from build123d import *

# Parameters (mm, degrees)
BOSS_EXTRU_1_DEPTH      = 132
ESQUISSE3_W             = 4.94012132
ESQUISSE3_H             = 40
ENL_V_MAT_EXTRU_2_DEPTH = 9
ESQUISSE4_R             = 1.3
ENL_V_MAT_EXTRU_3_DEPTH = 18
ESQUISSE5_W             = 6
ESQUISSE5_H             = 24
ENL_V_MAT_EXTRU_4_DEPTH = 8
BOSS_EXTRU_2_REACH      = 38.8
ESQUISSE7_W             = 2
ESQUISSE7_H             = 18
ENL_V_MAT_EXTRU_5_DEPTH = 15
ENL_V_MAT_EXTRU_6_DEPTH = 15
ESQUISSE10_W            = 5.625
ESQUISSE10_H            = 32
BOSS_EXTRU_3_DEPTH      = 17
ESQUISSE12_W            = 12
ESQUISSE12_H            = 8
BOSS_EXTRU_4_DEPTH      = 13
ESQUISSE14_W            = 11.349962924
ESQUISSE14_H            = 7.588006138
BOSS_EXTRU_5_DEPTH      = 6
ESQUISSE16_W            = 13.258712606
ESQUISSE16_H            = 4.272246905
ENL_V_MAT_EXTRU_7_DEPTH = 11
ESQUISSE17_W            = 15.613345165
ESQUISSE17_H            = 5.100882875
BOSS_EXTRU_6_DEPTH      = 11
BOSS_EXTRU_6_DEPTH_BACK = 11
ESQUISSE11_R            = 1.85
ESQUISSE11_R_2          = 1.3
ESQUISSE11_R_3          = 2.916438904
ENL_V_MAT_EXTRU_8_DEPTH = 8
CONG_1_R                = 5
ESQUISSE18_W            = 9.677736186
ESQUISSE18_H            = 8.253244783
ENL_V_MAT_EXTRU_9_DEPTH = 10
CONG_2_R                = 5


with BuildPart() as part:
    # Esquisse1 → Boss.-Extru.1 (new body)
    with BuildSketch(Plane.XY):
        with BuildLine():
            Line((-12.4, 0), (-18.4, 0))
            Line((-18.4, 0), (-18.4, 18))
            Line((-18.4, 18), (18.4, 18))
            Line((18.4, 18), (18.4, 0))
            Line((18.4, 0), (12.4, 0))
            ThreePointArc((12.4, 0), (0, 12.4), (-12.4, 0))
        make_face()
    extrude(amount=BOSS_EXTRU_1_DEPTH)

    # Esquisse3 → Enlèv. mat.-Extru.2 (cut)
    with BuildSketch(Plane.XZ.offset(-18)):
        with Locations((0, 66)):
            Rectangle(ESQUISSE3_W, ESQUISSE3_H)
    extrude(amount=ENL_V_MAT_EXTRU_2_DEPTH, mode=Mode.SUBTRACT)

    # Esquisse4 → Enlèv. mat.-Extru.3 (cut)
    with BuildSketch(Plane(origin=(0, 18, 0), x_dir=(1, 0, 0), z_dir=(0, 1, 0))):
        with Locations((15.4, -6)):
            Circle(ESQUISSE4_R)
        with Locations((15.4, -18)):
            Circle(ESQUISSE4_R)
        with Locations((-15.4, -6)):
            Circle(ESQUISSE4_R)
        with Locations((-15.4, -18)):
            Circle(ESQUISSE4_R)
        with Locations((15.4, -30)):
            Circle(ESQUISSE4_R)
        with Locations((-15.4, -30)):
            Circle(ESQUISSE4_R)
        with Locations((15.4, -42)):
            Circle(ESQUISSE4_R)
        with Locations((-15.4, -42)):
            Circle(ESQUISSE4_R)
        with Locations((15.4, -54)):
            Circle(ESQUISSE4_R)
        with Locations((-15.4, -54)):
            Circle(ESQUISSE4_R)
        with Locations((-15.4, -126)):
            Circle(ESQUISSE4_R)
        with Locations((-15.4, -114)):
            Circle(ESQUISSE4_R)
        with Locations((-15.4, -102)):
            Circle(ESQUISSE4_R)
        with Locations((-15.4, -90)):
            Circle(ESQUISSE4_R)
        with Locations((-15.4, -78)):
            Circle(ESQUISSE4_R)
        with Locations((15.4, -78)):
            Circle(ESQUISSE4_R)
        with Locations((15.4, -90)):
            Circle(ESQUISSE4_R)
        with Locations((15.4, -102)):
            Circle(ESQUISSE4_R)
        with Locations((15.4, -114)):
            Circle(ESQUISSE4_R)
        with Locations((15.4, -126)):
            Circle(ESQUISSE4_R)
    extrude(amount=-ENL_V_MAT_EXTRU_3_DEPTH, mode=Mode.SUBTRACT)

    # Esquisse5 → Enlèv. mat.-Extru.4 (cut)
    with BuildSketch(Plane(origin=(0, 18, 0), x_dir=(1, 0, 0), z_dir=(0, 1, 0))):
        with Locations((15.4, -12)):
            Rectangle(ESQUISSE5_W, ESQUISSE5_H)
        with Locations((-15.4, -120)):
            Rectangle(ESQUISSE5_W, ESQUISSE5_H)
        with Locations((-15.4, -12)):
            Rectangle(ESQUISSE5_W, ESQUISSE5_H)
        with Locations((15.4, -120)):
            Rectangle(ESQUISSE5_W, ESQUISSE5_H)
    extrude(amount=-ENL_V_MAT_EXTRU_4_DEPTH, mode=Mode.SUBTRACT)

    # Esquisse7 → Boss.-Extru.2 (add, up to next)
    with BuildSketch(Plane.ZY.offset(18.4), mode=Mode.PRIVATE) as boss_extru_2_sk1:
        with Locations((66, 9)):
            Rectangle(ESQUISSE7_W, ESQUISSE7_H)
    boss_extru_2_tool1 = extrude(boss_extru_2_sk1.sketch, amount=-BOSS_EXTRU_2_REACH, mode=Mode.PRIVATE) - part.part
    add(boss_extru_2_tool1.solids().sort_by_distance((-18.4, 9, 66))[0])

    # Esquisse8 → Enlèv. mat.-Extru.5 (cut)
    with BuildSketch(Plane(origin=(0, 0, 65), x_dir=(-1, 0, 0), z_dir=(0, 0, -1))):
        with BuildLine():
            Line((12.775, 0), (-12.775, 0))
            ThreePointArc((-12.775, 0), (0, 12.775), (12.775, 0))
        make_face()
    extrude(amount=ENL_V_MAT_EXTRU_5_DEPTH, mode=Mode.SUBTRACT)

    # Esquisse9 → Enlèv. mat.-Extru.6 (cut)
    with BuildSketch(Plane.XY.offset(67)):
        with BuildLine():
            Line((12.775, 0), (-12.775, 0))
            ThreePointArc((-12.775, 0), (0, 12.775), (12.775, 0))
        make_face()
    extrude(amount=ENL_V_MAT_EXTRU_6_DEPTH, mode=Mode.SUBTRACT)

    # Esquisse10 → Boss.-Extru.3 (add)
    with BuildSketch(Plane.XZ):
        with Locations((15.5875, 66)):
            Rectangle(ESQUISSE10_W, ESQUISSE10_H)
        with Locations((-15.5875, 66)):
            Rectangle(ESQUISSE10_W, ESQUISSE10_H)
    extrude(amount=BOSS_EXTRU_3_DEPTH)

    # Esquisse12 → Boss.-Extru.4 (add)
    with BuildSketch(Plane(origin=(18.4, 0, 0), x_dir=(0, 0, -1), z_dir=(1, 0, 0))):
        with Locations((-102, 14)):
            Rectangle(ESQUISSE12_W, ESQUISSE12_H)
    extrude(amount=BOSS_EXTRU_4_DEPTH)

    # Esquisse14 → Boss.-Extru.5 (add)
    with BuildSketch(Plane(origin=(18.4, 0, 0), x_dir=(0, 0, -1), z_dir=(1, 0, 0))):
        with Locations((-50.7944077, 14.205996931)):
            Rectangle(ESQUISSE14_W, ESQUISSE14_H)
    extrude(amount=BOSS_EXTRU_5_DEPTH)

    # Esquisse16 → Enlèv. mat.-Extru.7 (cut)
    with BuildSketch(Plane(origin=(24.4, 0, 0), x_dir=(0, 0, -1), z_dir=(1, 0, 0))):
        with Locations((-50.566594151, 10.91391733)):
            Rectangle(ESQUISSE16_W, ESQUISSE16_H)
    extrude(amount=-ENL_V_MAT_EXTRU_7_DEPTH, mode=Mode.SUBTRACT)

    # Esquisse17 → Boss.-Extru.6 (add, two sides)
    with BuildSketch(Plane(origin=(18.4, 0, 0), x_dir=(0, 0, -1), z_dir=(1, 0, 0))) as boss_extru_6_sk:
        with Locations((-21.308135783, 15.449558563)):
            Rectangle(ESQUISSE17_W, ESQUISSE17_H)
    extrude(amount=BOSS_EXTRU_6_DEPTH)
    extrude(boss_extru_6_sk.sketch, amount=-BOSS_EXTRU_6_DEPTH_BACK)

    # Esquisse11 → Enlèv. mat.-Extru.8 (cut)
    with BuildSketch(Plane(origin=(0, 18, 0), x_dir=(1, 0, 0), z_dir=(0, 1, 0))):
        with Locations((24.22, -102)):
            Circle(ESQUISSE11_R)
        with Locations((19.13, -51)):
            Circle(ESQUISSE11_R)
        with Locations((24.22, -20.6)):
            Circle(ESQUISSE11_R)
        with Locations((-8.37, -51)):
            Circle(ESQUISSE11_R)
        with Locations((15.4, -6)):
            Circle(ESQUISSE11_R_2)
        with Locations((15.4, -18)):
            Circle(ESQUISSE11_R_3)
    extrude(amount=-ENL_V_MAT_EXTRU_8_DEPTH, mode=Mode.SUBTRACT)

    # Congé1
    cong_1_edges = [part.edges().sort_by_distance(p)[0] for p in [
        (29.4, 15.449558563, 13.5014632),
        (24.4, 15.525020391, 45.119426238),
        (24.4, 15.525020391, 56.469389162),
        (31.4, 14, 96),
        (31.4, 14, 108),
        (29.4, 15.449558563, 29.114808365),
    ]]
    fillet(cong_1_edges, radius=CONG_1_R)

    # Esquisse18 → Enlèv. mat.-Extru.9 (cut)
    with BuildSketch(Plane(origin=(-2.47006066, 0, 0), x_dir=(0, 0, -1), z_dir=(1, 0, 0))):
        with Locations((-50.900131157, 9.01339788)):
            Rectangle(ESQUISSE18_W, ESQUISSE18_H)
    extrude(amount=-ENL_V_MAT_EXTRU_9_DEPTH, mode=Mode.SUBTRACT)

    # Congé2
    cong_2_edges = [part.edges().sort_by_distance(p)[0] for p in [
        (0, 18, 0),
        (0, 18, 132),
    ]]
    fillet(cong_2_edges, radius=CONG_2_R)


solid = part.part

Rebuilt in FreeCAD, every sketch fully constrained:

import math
import FreeCAD as App
import Part
import Sketcher

V = App.Vector


def edges_at(feature, points):
    """Names of the edges that pass closest to the given points."""
    edges = feature.Shape.Edges
    near = lambda p: min(range(len(edges)), key=lambda i: edges[i].distToShape(Part.Vertex(*p))[0])
    return sorted({f"Edge{near(p) + 1}" for p in points})

doc = App.newDocument("Part")
params = doc.addObject("Spreadsheet::Sheet", "Params")
for row, (alias, value) in enumerate([
    ("sketch1_radius", "12.4 mm"),
    ("sketch1_width", "6 mm"),
    ("sketch1_height", "18 mm"),
    ("pad1_length", "132 mm"),
    ("sketch2_height", "40 mm"),
    ("pocket1_length", "9 mm"),
    ("sketch3_diameter", "2.6 mm"),
    ("pocket2_length", "18 mm"),
    ("sketch4_width", "6 mm"),
    ("sketch4_height", "24 mm"),
    ("pocket3_length", "8 mm"),
    ("sketch5_width", "18 mm"),
    ("sketch5_height", "2 mm"),
    ("pocket4_length", "15 mm"),
    ("pocket5_length", "15 mm"),
    ("sketch8_height", "32 mm"),
    ("pad3_length", "17 mm"),
    ("sketch9_width", "8 mm"),
    ("sketch9_height", "12 mm"),
    ("pad4_length", "13 mm"),
    ("pad5_length", "6 mm"),
    ("pocket6_length", "11 mm"),
    ("pad6_length", "11 mm"),
    ("pad6_length2", "11 mm"),
    ("sketch13_diameter", "3.7 mm"),
    ("sketch13_diameter2", "2.6 mm"),
    ("pocket7_length", "8 mm"),
    ("fillet_radius", "5 mm"),
    ("pocket8_length", "10 mm"),
    ("fillet2_radius", "5 mm"),
], start=1):
    params.set(f"A{row}", alias)
    params.set(f"B{row}", "=" + value)
    params.setAlias(f"B{row}", alias)

body = doc.addObject("PartDesign::Body", "Body")

# Sketch on XY plane
sketch1 = doc.addObject("Sketcher::SketchObject", "Sketch")
body.addObject(sketch1)
sketch1.AttachmentSupport = (doc.XY_Plane, [""])
sketch1.MapMode = "FlatFace"
sketch1.addGeometry(Part.LineSegment(V(-18, 0, 0), V(-12, 0, 0)), False)
sketch1.addGeometry(Part.ArcOfCircle(Part.Circle(V(0, 0, 0), V(0, 0, 1), 12), math.radians(0), math.radians(180)), False)
sketch1.addGeometry(Part.LineSegment(V(12, 0, 0), V(18, 0, 0)), False)
sketch1.addGeometry(Part.LineSegment(V(18, 0, 0), V(18, 18, 0)), False)
sketch1.addGeometry(Part.LineSegment(V(18, 18, 0), V(-18, 18, 0)), False)
sketch1.addGeometry(Part.LineSegment(V(-18, 18, 0), V(-18, 0, 0)), False)
sketch1.addConstraint(Sketcher.Constraint("Coincident", 0, 2, 1, 2))
sketch1.addConstraint(Sketcher.Constraint("Coincident", 1, 1, 2, 1))
sketch1.addConstraint(Sketcher.Constraint("Coincident", 2, 2, 3, 1))
sketch1.addConstraint(Sketcher.Constraint("Coincident", 3, 2, 4, 1))
sketch1.addConstraint(Sketcher.Constraint("Coincident", 4, 2, 5, 1))
sketch1.addConstraint(Sketcher.Constraint("Coincident", 5, 2, 0, 1))
sketch1.addConstraint(Sketcher.Constraint("Horizontal", 0))
sketch1.addConstraint(Sketcher.Constraint("Horizontal", 2))
sketch1.addConstraint(Sketcher.Constraint("Vertical", 3))
sketch1.addConstraint(Sketcher.Constraint("Horizontal", 4))
sketch1.addConstraint(Sketcher.Constraint("Vertical", 5))
sketch1.addConstraint(Sketcher.Constraint("Coincident", 1, 3, -1, 1))
sketch1.addConstraint(Sketcher.Constraint("Symmetric", 2, 2, 5, 2, -1, 1))
sketch1.addConstraint(Sketcher.Constraint("PointOnObject", 0, 2, -1))
sketch1.addConstraint(Sketcher.Constraint("Radius", 1, 12.4))
sketch1.addConstraint(Sketcher.Constraint("DistanceX", 0, 1, 0, 2, 6.0))
sketch1.addConstraint(Sketcher.Constraint("DistanceY", 3, 1, 3, 2, 18.0))
sketch1.setExpression("Constraints[14]", "Params.sketch1_radius")
sketch1.setExpression("Constraints[15]", "Params.sketch1_width")
sketch1.setExpression("Constraints[16]", "Params.sketch1_height")
pad1 = doc.addObject("PartDesign::Pad", "Pad")
body.addObject(pad1)
pad1.Profile = sketch1
pad1.setExpression("Length", "Params.pad1_length")

# Sketch on XZ plane
sketch2 = doc.addObject("Sketcher::SketchObject", "Sketch001")
body.addObject(sketch2)
sketch2.AttachmentSupport = (doc.XZ_Plane, [""])
sketch2.MapMode = "FlatFace"
sketch2.AttachmentOffset = App.Placement(V(0, 0, -18), App.Rotation())
sketch2.addGeometry(Part.LineSegment(V(-2.5, 86, 0), V(-2.5, 46, 0)), False)
sketch2.addGeometry(Part.LineSegment(V(-2.5, 46, 0), V(2.5, 46, 0)), False)
sketch2.addGeometry(Part.LineSegment(V(2.5, 46, 0), V(2.5, 86, 0)), False)
sketch2.addGeometry(Part.LineSegment(V(2.5, 86, 0), V(-2.5, 86, 0)), False)
sketch2.addConstraint(Sketcher.Constraint("Coincident", 0, 2, 1, 1))
sketch2.addConstraint(Sketcher.Constraint("Coincident", 1, 2, 2, 1))
sketch2.addConstraint(Sketcher.Constraint("Coincident", 2, 2, 3, 1))
sketch2.addConstraint(Sketcher.Constraint("Coincident", 3, 2, 0, 1))
sketch2.addConstraint(Sketcher.Constraint("Vertical", 0))
sketch2.addConstraint(Sketcher.Constraint("Horizontal", 1))
sketch2.addConstraint(Sketcher.Constraint("Vertical", 2))
sketch2.addConstraint(Sketcher.Constraint("Horizontal", 3))
sketch2.addConstraint(Sketcher.Constraint("DistanceY", 0, 2, 0, 1, 40.0))
sketch2.addConstraint(Sketcher.Constraint("DistanceY", -1, 1, 0, 2, 46.0))
sketch2.addConstraint(Sketcher.Constraint("DistanceX", 1, 1, 1, 2, 4.940121))
sketch2.addConstraint(Sketcher.Constraint("DistanceX", 0, 2, -1, 1, 2.470061))
sketch2.setExpression("Constraints[8]", "Params.sketch2_height")
pocket1 = doc.addObject("PartDesign::Pocket", "Pocket")
body.addObject(pocket1)
pocket1.Profile = sketch2
pocket1.setExpression("Length", "Params.pocket1_length")
pocket1.Reversed = True

# Sketch on XZ plane
sketch3 = doc.addObject("Sketcher::SketchObject", "Sketch002")
body.addObject(sketch3)
sketch3.AttachmentSupport = (doc.XZ_Plane, [""])
sketch3.MapMode = "FlatFace"
sketch3.AttachmentOffset = App.Placement(V(0, 0, -18), App.Rotation())
sketch3.addGeometry(Part.Circle(V(15.4, 6, 0), V(0, 0, 1), 1.3), False)
sketch3.addGeometry(Part.Circle(V(15.4, 18, 0), V(0, 0, 1), 1.3), False)
sketch3.addGeometry(Part.Circle(V(-15.4, 6, 0), V(0, 0, 1), 1.3), False)
sketch3.addGeometry(Part.Circle(V(-15.4, 18, 0), V(0, 0, 1), 1.3), False)
sketch3.addGeometry(Part.Circle(V(15.4, 30, 0), V(0, 0, 1), 1.3), False)
sketch3.addGeometry(Part.Circle(V(-15.4, 30, 0), V(0, 0, 1), 1.3), False)
sketch3.addGeometry(Part.Circle(V(15.4, 42, 0), V(0, 0, 1), 1.3), False)
sketch3.addGeometry(Part.Circle(V(-15.4, 42, 0), V(0, 0, 1), 1.3), False)
sketch3.addGeometry(Part.Circle(V(15.4, 54, 0), V(0, 0, 1), 1.3), False)
sketch3.addGeometry(Part.Circle(V(-15.4, 54, 0), V(0, 0, 1), 1.3), False)
sketch3.addGeometry(Part.Circle(V(-15.4, 126, 0), V(0, 0, 1), 1.3), False)
sketch3.addGeometry(Part.Circle(V(-15.4, 114, 0), V(0, 0, 1), 1.3), False)
sketch3.addGeometry(Part.Circle(V(-15.4, 102, 0), V(0, 0, 1), 1.3), False)
sketch3.addGeometry(Part.Circle(V(-15.4, 90, 0), V(0, 0, 1), 1.3), False)
sketch3.addGeometry(Part.Circle(V(-15.4, 78, 0), V(0, 0, 1), 1.3), False)
sketch3.addGeometry(Part.Circle(V(15.4, 78, 0), V(0, 0, 1), 1.3), False)
sketch3.addGeometry(Part.Circle(V(15.4, 90, 0), V(0, 0, 1), 1.3), False)
sketch3.addGeometry(Part.Circle(V(15.4, 102, 0), V(0, 0, 1), 1.3), False)
sketch3.addGeometry(Part.Circle(V(15.4, 114, 0), V(0, 0, 1), 1.3), False)
sketch3.addGeometry(Part.Circle(V(15.4, 126, 0), V(0, 0, 1), 1.3), False)
sketch3.addConstraint(Sketcher.Constraint("Equal", 0, 1))
sketch3.addConstraint(Sketcher.Constraint("Equal", 1, 2))
sketch3.addConstraint(Sketcher.Constraint("Equal", 2, 3))
sketch3.addConstraint(Sketcher.Constraint("Equal", 3, 4))
sketch3.addConstraint(Sketcher.Constraint("Equal", 4, 5))
sketch3.addConstraint(Sketcher.Constraint("Equal", 5, 6))
sketch3.addConstraint(Sketcher.Constraint("Equal", 6, 7))
sketch3.addConstraint(Sketcher.Constraint("Equal", 7, 8))
sketch3.addConstraint(Sketcher.Constraint("Equal", 8, 9))
sketch3.addConstraint(Sketcher.Constraint("Equal", 9, 10))
sketch3.addConstraint(Sketcher.Constraint("Equal", 10, 11))
sketch3.addConstraint(Sketcher.Constraint("Equal", 11, 12))
sketch3.addConstraint(Sketcher.Constraint("Equal", 12, 13))
sketch3.addConstraint(Sketcher.Constraint("Equal", 13, 14))
sketch3.addConstraint(Sketcher.Constraint("Equal", 14, 15))
sketch3.addConstraint(Sketcher.Constraint("Equal", 15, 16))
sketch3.addConstraint(Sketcher.Constraint("Equal", 16, 17))
sketch3.addConstraint(Sketcher.Constraint("Equal", 17, 18))
sketch3.addConstraint(Sketcher.Constraint("Equal", 18, 19))
sketch3.addConstraint(Sketcher.Constraint("Symmetric", 0, 3, 2, 3, -2))
sketch3.addConstraint(Sketcher.Constraint("Symmetric", 1, 3, 3, 3, -2))
sketch3.addConstraint(Sketcher.Constraint("Symmetric", 4, 3, 5, 3, -2))
sketch3.addConstraint(Sketcher.Constraint("Symmetric", 6, 3, 7, 3, -2))
sketch3.addConstraint(Sketcher.Constraint("Symmetric", 8, 3, 9, 3, -2))
sketch3.addConstraint(Sketcher.Constraint("Symmetric", 14, 3, 15, 3, -2))
sketch3.addConstraint(Sketcher.Constraint("Symmetric", 13, 3, 16, 3, -2))
sketch3.addConstraint(Sketcher.Constraint("Symmetric", 12, 3, 17, 3, -2))
sketch3.addConstraint(Sketcher.Constraint("Symmetric", 11, 3, 18, 3, -2))
sketch3.addConstraint(Sketcher.Constraint("Symmetric", 10, 3, 19, 3, -2))
sketch3.addConstraint(Sketcher.Constraint("Vertical", 0, 3, 1, 3))
sketch3.addConstraint(Sketcher.Constraint("Vertical", 1, 3, 4, 3))
sketch3.addConstraint(Sketcher.Constraint("Vertical", 4, 3, 6, 3))
sketch3.addConstraint(Sketcher.Constraint("Vertical", 6, 3, 8, 3))
sketch3.addConstraint(Sketcher.Constraint("Vertical", 9, 3, 10, 3))
sketch3.addConstraint(Sketcher.Constraint("Vertical", 10, 3, 11, 3))
sketch3.addConstraint(Sketcher.Constraint("Vertical", 11, 3, 12, 3))
sketch3.addConstraint(Sketcher.Constraint("Vertical", 12, 3, 13, 3))
sketch3.addConstraint(Sketcher.Constraint("Vertical", 13, 3, 14, 3))
sketch3.addConstraint(Sketcher.Constraint("Diameter", 0, 2.6))
sketch3.addConstraint(Sketcher.Constraint("DistanceY", -1, 1, 0, 3, 6.0))
sketch3.addConstraint(Sketcher.Constraint("DistanceY", -1, 1, 1, 3, 18.0))
sketch3.addConstraint(Sketcher.Constraint("DistanceY", -1, 1, 4, 3, 30.0))
sketch3.addConstraint(Sketcher.Constraint("DistanceY", -1, 1, 6, 3, 42.0))
sketch3.addConstraint(Sketcher.Constraint("DistanceY", -1, 1, 8, 3, 54.0))
sketch3.addConstraint(Sketcher.Constraint("DistanceY", -1, 1, 10, 3, 126.0))
sketch3.addConstraint(Sketcher.Constraint("DistanceY", -1, 1, 11, 3, 114.0))
sketch3.addConstraint(Sketcher.Constraint("DistanceY", -1, 1, 12, 3, 102.0))
sketch3.addConstraint(Sketcher.Constraint("DistanceY", -1, 1, 13, 3, 90.0))
sketch3.addConstraint(Sketcher.Constraint("DistanceY", -1, 1, 14, 3, 78.0))
sketch3.addConstraint(Sketcher.Constraint("DistanceX", -1, 1, 0, 3, 15.4))
sketch3.setExpression("Constraints[38]", "Params.sketch3_diameter")
pocket2 = doc.addObject("PartDesign::Pocket", "Pocket001")
body.addObject(pocket2)
pocket2.Profile = sketch3
pocket2.setExpression("Length", "Params.pocket2_length")
pocket2.Reversed = True

# Sketch on XZ plane
sketch4 = doc.addObject("Sketcher::SketchObject", "Sketch003")
body.addObject(sketch4)
sketch4.AttachmentSupport = (doc.XZ_Plane, [""])
sketch4.MapMode = "FlatFace"
sketch4.AttachmentOffset = App.Placement(V(0, 0, -18), App.Rotation())
sketch4.addGeometry(Part.LineSegment(V(12, 0, 0), V(12, 24, 0)), False)
sketch4.addGeometry(Part.LineSegment(V(12, 24, 0), V(18, 24, 0)), False)
sketch4.addGeometry(Part.LineSegment(V(18, 24, 0), V(18, 0, 0)), False)
sketch4.addGeometry(Part.LineSegment(V(18, 0, 0), V(12, 0, 0)), False)
sketch4.addGeometry(Part.LineSegment(V(-18, 108, 0), V(-18, 132, 0)), False)
sketch4.addGeometry(Part.LineSegment(V(-18, 132, 0), V(-12, 132, 0)), False)
sketch4.addGeometry(Part.LineSegment(V(-12, 132, 0), V(-12, 108, 0)), False)
sketch4.addGeometry(Part.LineSegment(V(-12, 108, 0), V(-18, 108, 0)), False)
sketch4.addGeometry(Part.LineSegment(V(-18, 0, 0), V(-18, 24, 0)), False)
sketch4.addGeometry(Part.LineSegment(V(-18, 24, 0), V(-12, 24, 0)), False)
sketch4.addGeometry(Part.LineSegment(V(-12, 24, 0), V(-12, 0, 0)), False)
sketch4.addGeometry(Part.LineSegment(V(-12, 0, 0), V(-18, 0, 0)), False)
sketch4.addGeometry(Part.LineSegment(V(12, 108, 0), V(12, 132, 0)), False)
sketch4.addGeometry(Part.LineSegment(V(12, 132, 0), V(18, 132, 0)), False)
sketch4.addGeometry(Part.LineSegment(V(18, 132, 0), V(18, 108, 0)), False)
sketch4.addGeometry(Part.LineSegment(V(18, 108, 0), V(12, 108, 0)), False)
sketch4.addConstraint(Sketcher.Constraint("Coincident", 0, 2, 1, 1))
sketch4.addConstraint(Sketcher.Constraint("Coincident", 1, 2, 2, 1))
sketch4.addConstraint(Sketcher.Constraint("Coincident", 2, 2, 3, 1))
sketch4.addConstraint(Sketcher.Constraint("Coincident", 3, 2, 0, 1))
sketch4.addConstraint(Sketcher.Constraint("Coincident", 4, 2, 5, 1))
sketch4.addConstraint(Sketcher.Constraint("Coincident", 5, 2, 6, 1))
sketch4.addConstraint(Sketcher.Constraint("Coincident", 6, 2, 7, 1))
sketch4.addConstraint(Sketcher.Constraint("Coincident", 7, 2, 4, 1))
sketch4.addConstraint(Sketcher.Constraint("Coincident", 8, 2, 9, 1))
sketch4.addConstraint(Sketcher.Constraint("Coincident", 9, 2, 10, 1))
sketch4.addConstraint(Sketcher.Constraint("Coincident", 10, 2, 11, 1))
sketch4.addConstraint(Sketcher.Constraint("Coincident", 11, 2, 8, 1))
sketch4.addConstraint(Sketcher.Constraint("Coincident", 12, 2, 13, 1))
sketch4.addConstraint(Sketcher.Constraint("Coincident", 13, 2, 14, 1))
sketch4.addConstraint(Sketcher.Constraint("Coincident", 14, 2, 15, 1))
sketch4.addConstraint(Sketcher.Constraint("Coincident", 15, 2, 12, 1))
sketch4.addConstraint(Sketcher.Constraint("Vertical", 0))
sketch4.addConstraint(Sketcher.Constraint("Horizontal", 1))
sketch4.addConstraint(Sketcher.Constraint("Vertical", 2))
sketch4.addConstraint(Sketcher.Constraint("Horizontal", 3))
sketch4.addConstraint(Sketcher.Constraint("Vertical", 4))
sketch4.addConstraint(Sketcher.Constraint("Horizontal", 5))
sketch4.addConstraint(Sketcher.Constraint("Vertical", 6))
sketch4.addConstraint(Sketcher.Constraint("Horizontal", 7))
sketch4.addConstraint(Sketcher.Constraint("Vertical", 8))
sketch4.addConstraint(Sketcher.Constraint("Horizontal", 9))
sketch4.addConstraint(Sketcher.Constraint("Vertical", 10))
sketch4.addConstraint(Sketcher.Constraint("Horizontal", 11))
sketch4.addConstraint(Sketcher.Constraint("Vertical", 12))
sketch4.addConstraint(Sketcher.Constraint("Horizontal", 13))
sketch4.addConstraint(Sketcher.Constraint("Vertical", 14))
sketch4.addConstraint(Sketcher.Constraint("Horizontal", 15))
sketch4.addConstraint(Sketcher.Constraint("Symmetric", 3, 2, 10, 2, -1, 1))
sketch4.addConstraint(Sketcher.Constraint("Symmetric", 1, 2, 8, 2, -2))
sketch4.addConstraint(Sketcher.Constraint("Symmetric", 5, 2, 12, 2, -2))
sketch4.addConstraint(Sketcher.Constraint("Symmetric", 7, 2, 14, 2, -2))
sketch4.addConstraint(Sketcher.Constraint("PointOnObject", 2, 2, -1))
sketch4.addConstraint(Sketcher.Constraint("Vertical", 7, 2, 8, 2))
sketch4.addConstraint(Sketcher.Constraint("Vertical", 6, 2, 9, 2))
sketch4.addConstraint(Sketcher.Constraint("Equal", 2, 4))
sketch4.addConstraint(Sketcher.Constraint("DistanceX", 1, 1, 1, 2, 6.0))
sketch4.addConstraint(Sketcher.Constraint("DistanceY", 0, 1, 0, 2, 24.0))
sketch4.addConstraint(Sketcher.Constraint("DistanceY", -1, 1, 4, 2, 132.0))
sketch4.addConstraint(Sketcher.Constraint("DistanceX", -1, 1, 0, 2, 12.4))
sketch4.setExpression("Constraints[40]", "Params.sketch4_width")
sketch4.setExpression("Constraints[41]", "Params.sketch4_height")
pocket3 = doc.addObject("PartDesign::Pocket", "Pocket002")
body.addObject(pocket3)
pocket3.Profile = sketch4
pocket3.setExpression("Length", "Params.pocket3_length")
pocket3.Reversed = True

# Sketch on YZ plane
sketch5 = doc.addObject("Sketcher::SketchObject", "Sketch004")
body.addObject(sketch5)
sketch5.AttachmentSupport = (doc.YZ_Plane, [""])
sketch5.MapMode = "FlatFace"
sketch5.AttachmentOffset = App.Placement(V(0, 0, -18.4), App.Rotation())
sketch5.addGeometry(Part.LineSegment(V(18, 65, 0), V(0, 65, 0)), False)
sketch5.addGeometry(Part.LineSegment(V(0, 65, 0), V(0, 67, 0)), False)
sketch5.addGeometry(Part.LineSegment(V(0, 67, 0), V(18, 67, 0)), False)
sketch5.addGeometry(Part.LineSegment(V(18, 67, 0), V(18, 65, 0)), False)
sketch5.addConstraint(Sketcher.Constraint("Coincident", 0, 2, 1, 1))
sketch5.addConstraint(Sketcher.Constraint("Coincident", 1, 2, 2, 1))
sketch5.addConstraint(Sketcher.Constraint("Coincident", 2, 2, 3, 1))
sketch5.addConstraint(Sketcher.Constraint("Coincident", 3, 2, 0, 1))
sketch5.addConstraint(Sketcher.Constraint("Horizontal", 0))
sketch5.addConstraint(Sketcher.Constraint("Vertical", 1))
sketch5.addConstraint(Sketcher.Constraint("Horizontal", 2))
sketch5.addConstraint(Sketcher.Constraint("Vertical", 3))
sketch5.addConstraint(Sketcher.Constraint("PointOnObject", 0, 2, -2))
sketch5.addConstraint(Sketcher.Constraint("DistanceX", 0, 2, 0, 1, 18.0))
sketch5.addConstraint(Sketcher.Constraint("DistanceY", 1, 1, 1, 2, 2.0))
sketch5.addConstraint(Sketcher.Constraint("DistanceY", -1, 1, 0, 2, 65.0))
sketch5.setExpression("Constraints[9]", "Params.sketch5_width")
sketch5.setExpression("Constraints[10]", "Params.sketch5_height")
pad2 = doc.addObject("PartDesign::Pad", "Pad001")
body.addObject(pad2)
pad2.Profile = sketch5
pad2.Type = "UpToFirst"

# Sketch on XY plane
sketch6 = doc.addObject("Sketcher::SketchObject", "Sketch005")
body.addObject(sketch6)
sketch6.AttachmentSupport = (doc.XY_Plane, [""])
sketch6.MapMode = "FlatFace"
sketch6.AttachmentOffset = App.Placement(V(0, 0, 65), App.Rotation())
sketch6.addGeometry(Part.LineSegment(V(13, 0, 0), V(-13, 0, 0)), False)
sketch6.addGeometry(Part.ArcOfCircle(Part.Circle(V(0, 0, 0), V(0, 0, 1), 13), math.radians(0), math.radians(180)), False)
sketch6.addConstraint(Sketcher.Constraint("Coincident", 0, 1, 1, 1))
sketch6.addConstraint(Sketcher.Constraint("Coincident", 1, 2, 0, 2))
sketch6.addConstraint(Sketcher.Constraint("Horizontal", 0))
sketch6.addConstraint(Sketcher.Constraint("Coincident", 1, 3, -1, 1))
sketch6.addConstraint(Sketcher.Constraint("PointOnObject", 0, 1, -1))
sketch6.addConstraint(Sketcher.Constraint("Radius", 1, 12.775))
pocket4 = doc.addObject("PartDesign::Pocket", "Pocket003")
body.addObject(pocket4)
pocket4.Profile = sketch6
pocket4.setExpression("Length", "Params.pocket4_length")

# Sketch on XY plane
sketch7 = doc.addObject("Sketcher::SketchObject", "Sketch006")
body.addObject(sketch7)
sketch7.AttachmentSupport = (doc.XY_Plane, [""])
sketch7.MapMode = "FlatFace"
sketch7.AttachmentOffset = App.Placement(V(0, 0, 67), App.Rotation())
sketch7.addGeometry(Part.LineSegment(V(-13, 0, 0), V(13, 0, 0)), False)
sketch7.addGeometry(Part.ArcOfCircle(Part.Circle(V(0, 0, 0), V(0, 0, 1), 13), math.radians(0), math.radians(180)), False)
sketch7.addConstraint(Sketcher.Constraint("Coincident", 0, 1, 1, 2))
sketch7.addConstraint(Sketcher.Constraint("Coincident", 1, 1, 0, 2))
sketch7.addConstraint(Sketcher.Constraint("Horizontal", 0))
sketch7.addConstraint(Sketcher.Constraint("Coincident", 1, 3, -1, 1))
sketch7.addConstraint(Sketcher.Constraint("PointOnObject", 0, 1, -1))
sketch7.addConstraint(Sketcher.Constraint("Radius", 1, 12.775))
pocket5 = doc.addObject("PartDesign::Pocket", "Pocket004")
body.addObject(pocket5)
pocket5.Profile = sketch7
pocket5.setExpression("Length", "Params.pocket5_length")
pocket5.Reversed = True

# Sketch on XZ plane
sketch8 = doc.addObject("Sketcher::SketchObject", "Sketch007")
body.addObject(sketch8)
sketch8.AttachmentSupport = (doc.XZ_Plane, [""])
sketch8.MapMode = "FlatFace"
sketch8.addGeometry(Part.LineSegment(V(13, 82, 0), V(13, 50, 0)), False)
sketch8.addGeometry(Part.LineSegment(V(13, 50, 0), V(18, 50, 0)), False)
sketch8.addGeometry(Part.LineSegment(V(18, 50, 0), V(18, 82, 0)), False)
sketch8.addGeometry(Part.LineSegment(V(18, 82, 0), V(13, 82, 0)), False)
sketch8.addGeometry(Part.LineSegment(V(-18, 82, 0), V(-18, 50, 0)), False)
sketch8.addGeometry(Part.LineSegment(V(-18, 50, 0), V(-13, 50, 0)), False)
sketch8.addGeometry(Part.LineSegment(V(-13, 50, 0), V(-13, 82, 0)), False)
sketch8.addGeometry(Part.LineSegment(V(-13, 82, 0), V(-18, 82, 0)), False)
sketch8.addConstraint(Sketcher.Constraint("Coincident", 0, 2, 1, 1))
sketch8.addConstraint(Sketcher.Constraint("Coincident", 1, 2, 2, 1))
sketch8.addConstraint(Sketcher.Constraint("Coincident", 2, 2, 3, 1))
sketch8.addConstraint(Sketcher.Constraint("Coincident", 3, 2, 0, 1))
sketch8.addConstraint(Sketcher.Constraint("Coincident", 4, 2, 5, 1))
sketch8.addConstraint(Sketcher.Constraint("Coincident", 5, 2, 6, 1))
sketch8.addConstraint(Sketcher.Constraint("Coincident", 6, 2, 7, 1))
sketch8.addConstraint(Sketcher.Constraint("Coincident", 7, 2, 4, 1))
sketch8.addConstraint(Sketcher.Constraint("Vertical", 0))
sketch8.addConstraint(Sketcher.Constraint("Horizontal", 1))
sketch8.addConstraint(Sketcher.Constraint("Vertical", 2))
sketch8.addConstraint(Sketcher.Constraint("Horizontal", 3))
sketch8.addConstraint(Sketcher.Constraint("Vertical", 4))
sketch8.addConstraint(Sketcher.Constraint("Horizontal", 5))
sketch8.addConstraint(Sketcher.Constraint("Vertical", 6))
sketch8.addConstraint(Sketcher.Constraint("Horizontal", 7))
sketch8.addConstraint(Sketcher.Constraint("Symmetric", 1, 2, 4, 2, -2))
sketch8.addConstraint(Sketcher.Constraint("Symmetric", 3, 2, 6, 2, -2))
sketch8.addConstraint(Sketcher.Constraint("DistanceY", 0, 2, 0, 1, 32.0))
sketch8.addConstraint(Sketcher.Constraint("DistanceY", -1, 1, 0, 2, 50.0))
sketch8.addConstraint(Sketcher.Constraint("DistanceX", -1, 1, 1, 2, 18.4))
sketch8.addConstraint(Sketcher.Constraint("DistanceX", 1, 1, 1, 2, 5.625))
sketch8.setExpression("Constraints[18]", "Params.sketch8_height")
pad3 = doc.addObject("PartDesign::Pad", "Pad002")
body.addObject(pad3)
pad3.Profile = sketch8
pad3.setExpression("Length", "Params.pad3_length")

# Sketch on YZ plane
sketch9 = doc.addObject("Sketcher::SketchObject", "Sketch008")
body.addObject(sketch9)
sketch9.AttachmentSupport = (doc.YZ_Plane, [""])
sketch9.MapMode = "FlatFace"
sketch9.AttachmentOffset = App.Placement(V(0, 0, 18.4), App.Rotation())
sketch9.addGeometry(Part.LineSegment(V(18, 108, 0), V(10, 108, 0)), False)
sketch9.addGeometry(Part.LineSegment(V(10, 108, 0), V(10, 96, 0)), False)
sketch9.addGeometry(Part.LineSegment(V(10, 96, 0), V(18, 96, 0)), False)
sketch9.addGeometry(Part.LineSegment(V(18, 96, 0), V(18, 108, 0)), False)
sketch9.addConstraint(Sketcher.Constraint("Coincident", 0, 2, 1, 1))
sketch9.addConstraint(Sketcher.Constraint("Coincident", 1, 2, 2, 1))
sketch9.addConstraint(Sketcher.Constraint("Coincident", 2, 2, 3, 1))
sketch9.addConstraint(Sketcher.Constraint("Coincident", 3, 2, 0, 1))
sketch9.addConstraint(Sketcher.Constraint("Horizontal", 0))
sketch9.addConstraint(Sketcher.Constraint("Vertical", 1))
sketch9.addConstraint(Sketcher.Constraint("Horizontal", 2))
sketch9.addConstraint(Sketcher.Constraint("Vertical", 3))
sketch9.addConstraint(Sketcher.Constraint("DistanceX", 0, 2, 0, 1, 8.0))
sketch9.addConstraint(Sketcher.Constraint("DistanceY", 1, 2, 1, 1, 12.0))
sketch9.addConstraint(Sketcher.Constraint("DistanceX", -1, 1, 0, 2, 10.0))
sketch9.addConstraint(Sketcher.Constraint("DistanceY", -1, 1, 0, 2, 108.0))
sketch9.setExpression("Constraints[8]", "Params.sketch9_width")
sketch9.setExpression("Constraints[9]", "Params.sketch9_height")
pad4 = doc.addObject("PartDesign::Pad", "Pad003")
body.addObject(pad4)
pad4.Profile = sketch9
pad4.setExpression("Length", "Params.pad4_length")

# Sketch on YZ plane
sketch10 = doc.addObject("Sketcher::SketchObject", "Sketch009")
body.addObject(sketch10)
sketch10.AttachmentSupport = (doc.YZ_Plane, [""])
sketch10.MapMode = "FlatFace"
sketch10.AttachmentOffset = App.Placement(V(0, 0, 18.4), App.Rotation())
sketch10.addGeometry(Part.LineSegment(V(18, 56, 0), V(10, 56, 0)), False)
sketch10.addGeometry(Part.LineSegment(V(10, 56, 0), V(10, 45, 0)), False)
sketch10.addGeometry(Part.LineSegment(V(10, 45, 0), V(18, 45, 0)), False)
sketch10.addGeometry(Part.LineSegment(V(18, 45, 0), V(18, 56, 0)), False)
sketch10.addConstraint(Sketcher.Constraint("Coincident", 0, 2, 1, 1))
sketch10.addConstraint(Sketcher.Constraint("Coincident", 1, 2, 2, 1))
sketch10.addConstraint(Sketcher.Constraint("Coincident", 2, 2, 3, 1))
sketch10.addConstraint(Sketcher.Constraint("Coincident", 3, 2, 0, 1))
sketch10.addConstraint(Sketcher.Constraint("Horizontal", 0))
sketch10.addConstraint(Sketcher.Constraint("Vertical", 1))
sketch10.addConstraint(Sketcher.Constraint("Horizontal", 2))
sketch10.addConstraint(Sketcher.Constraint("Vertical", 3))
sketch10.addConstraint(Sketcher.Constraint("DistanceX", -1, 1, 2, 2, 18.0))
sketch10.addConstraint(Sketcher.Constraint("DistanceX", 0, 2, 0, 1, 7.588006))
sketch10.addConstraint(Sketcher.Constraint("DistanceY", 1, 2, 1, 1, 11.349963))
sketch10.addConstraint(Sketcher.Constraint("DistanceY", -1, 1, 0, 2, 56.469389))
pad5 = doc.addObject("PartDesign::Pad", "Pad004")
body.addObject(pad5)
pad5.Profile = sketch10
pad5.setExpression("Length", "Params.pad5_length")

# Sketch on YZ plane
sketch11 = doc.addObject("Sketcher::SketchObject", "Sketch010")
body.addObject(sketch11)
sketch11.AttachmentSupport = (doc.YZ_Plane, [""])
sketch11.MapMode = "FlatFace"
sketch11.AttachmentOffset = App.Placement(V(0, 0, 24.4), App.Rotation())
sketch11.addGeometry(Part.LineSegment(V(13.1, 57.2, 0), V(8.8, 57.2, 0)), False)
sketch11.addGeometry(Part.LineSegment(V(8.8, 57.2, 0), V(8.8, 43.9, 0)), False)
sketch11.addGeometry(Part.LineSegment(V(8.8, 43.9, 0), V(13.1, 43.9, 0)), False)
sketch11.addGeometry(Part.LineSegment(V(13.1, 43.9, 0), V(13.1, 57.2, 0)), False)
sketch11.addConstraint(Sketcher.Constraint("Coincident", 0, 2, 1, 1))
sketch11.addConstraint(Sketcher.Constraint("Coincident", 1, 2, 2, 1))
sketch11.addConstraint(Sketcher.Constraint("Coincident", 2, 2, 3, 1))
sketch11.addConstraint(Sketcher.Constraint("Coincident", 3, 2, 0, 1))
sketch11.addConstraint(Sketcher.Constraint("Horizontal", 0))
sketch11.addConstraint(Sketcher.Constraint("Vertical", 1))
sketch11.addConstraint(Sketcher.Constraint("Horizontal", 2))
sketch11.addConstraint(Sketcher.Constraint("Vertical", 3))
sketch11.addConstraint(Sketcher.Constraint("DistanceX", 0, 2, 0, 1, 4.272247))
sketch11.addConstraint(Sketcher.Constraint("DistanceY", 1, 2, 1, 1, 13.258713))
sketch11.addConstraint(Sketcher.Constraint("DistanceY", -1, 1, 0, 2, 57.19595))
sketch11.addConstraint(Sketcher.Constraint("DistanceX", -1, 1, 2, 2, 13.050041))
pocket6 = doc.addObject("PartDesign::Pocket", "Pocket005")
body.addObject(pocket6)
pocket6.Profile = sketch11
pocket6.setExpression("Length", "Params.pocket6_length")

# Sketch on YZ plane
sketch12 = doc.addObject("Sketcher::SketchObject", "Sketch011")
body.addObject(sketch12)
sketch12.AttachmentSupport = (doc.YZ_Plane, [""])
sketch12.MapMode = "FlatFace"
sketch12.AttachmentOffset = App.Placement(V(0, 0, 18.4), App.Rotation())
sketch12.addGeometry(Part.LineSegment(V(18, 29, 0), V(13, 29, 0)), False)
sketch12.addGeometry(Part.LineSegment(V(13, 29, 0), V(13, 14, 0)), False)
sketch12.addGeometry(Part.LineSegment(V(13, 14, 0), V(18, 14, 0)), False)
sketch12.addGeometry(Part.LineSegment(V(18, 14, 0), V(18, 29, 0)), False)
sketch12.addConstraint(Sketcher.Constraint("Coincident", 0, 2, 1, 1))
sketch12.addConstraint(Sketcher.Constraint("Coincident", 1, 2, 2, 1))
sketch12.addConstraint(Sketcher.Constraint("Coincident", 2, 2, 3, 1))
sketch12.addConstraint(Sketcher.Constraint("Coincident", 3, 2, 0, 1))
sketch12.addConstraint(Sketcher.Constraint("Horizontal", 0))
sketch12.addConstraint(Sketcher.Constraint("Vertical", 1))
sketch12.addConstraint(Sketcher.Constraint("Horizontal", 2))
sketch12.addConstraint(Sketcher.Constraint("Vertical", 3))
sketch12.addConstraint(Sketcher.Constraint("DistanceX", -1, 1, 2, 2, 18.0))
sketch12.addConstraint(Sketcher.Constraint("DistanceX", 0, 2, 0, 1, 5.100883))
sketch12.addConstraint(Sketcher.Constraint("DistanceY", 1, 2, 1, 1, 15.613345))
sketch12.addConstraint(Sketcher.Constraint("DistanceY", -1, 1, 0, 2, 29.114808))
pad6 = doc.addObject("PartDesign::Pad", "Pad005")
body.addObject(pad6)
pad6.Profile = sketch12
pad6.Type = "TwoLengths"
pad6.setExpression("Length", "Params.pad6_length")
pad6.setExpression("Length2", "Params.pad6_length2")

# Sketch on XZ plane
sketch13 = doc.addObject("Sketcher::SketchObject", "Sketch012")
body.addObject(sketch13)
sketch13.AttachmentSupport = (doc.XZ_Plane, [""])
sketch13.MapMode = "FlatFace"
sketch13.AttachmentOffset = App.Placement(V(0, 0, -18), App.Rotation())
sketch13.addGeometry(Part.Circle(V(24.2, 102, 0), V(0, 0, 1), 1.9), False)
sketch13.addGeometry(Part.Circle(V(19.1, 51, 0), V(0, 0, 1), 1.9), False)
sketch13.addGeometry(Part.Circle(V(24.2, 20.6, 0), V(0, 0, 1), 1.9), False)
sketch13.addGeometry(Part.Circle(V(-8.4, 51, 0), V(0, 0, 1), 1.9), False)
sketch13.addGeometry(Part.Circle(V(15.4, 6, 0), V(0, 0, 1), 1.3), False)
sketch13.addGeometry(Part.Circle(V(15.4, 18, 0), V(0, 0, 1), 2.9), False)
sketch13.addConstraint(Sketcher.Constraint("Equal", 0, 1))
sketch13.addConstraint(Sketcher.Constraint("Equal", 1, 2))
sketch13.addConstraint(Sketcher.Constraint("Equal", 2, 3))
sketch13.addConstraint(Sketcher.Constraint("Horizontal", 1, 3, 3, 3))
sketch13.addConstraint(Sketcher.Constraint("Vertical", 0, 3, 2, 3))
sketch13.addConstraint(Sketcher.Constraint("Vertical", 4, 3, 5, 3))
sketch13.addConstraint(Sketcher.Constraint("Diameter", 0, 3.7))
sketch13.addConstraint(Sketcher.Constraint("Diameter", 4, 2.6))
sketch13.addConstraint(Sketcher.Constraint("DistanceY", -1, 1, 0, 3, 102.0))
sketch13.addConstraint(Sketcher.Constraint("DistanceY", -1, 1, 1, 3, 51.0))
sketch13.addConstraint(Sketcher.Constraint("DistanceY", -1, 1, 4, 3, 6.0))
sketch13.addConstraint(Sketcher.Constraint("DistanceY", -1, 1, 5, 3, 18.0))
sketch13.addConstraint(Sketcher.Constraint("DistanceY", -1, 1, 2, 3, 20.6))
sketch13.addConstraint(Sketcher.Constraint("DistanceX", -1, 1, 4, 3, 15.4))
sketch13.addConstraint(Sketcher.Constraint("DistanceX", 3, 3, 1, 3, 27.5))
sketch13.addConstraint(Sketcher.Constraint("DistanceX", -1, 1, 0, 3, 24.22))
sketch13.addConstraint(Sketcher.Constraint("DistanceX", -1, 1, 1, 3, 19.13))
sketch13.addConstraint(Sketcher.Constraint("Diameter", 5, 5.832878))
sketch13.setExpression("Constraints[6]", "Params.sketch13_diameter")
sketch13.setExpression("Constraints[7]", "Params.sketch13_diameter2")
pocket7 = doc.addObject("PartDesign::Pocket", "Pocket006")
body.addObject(pocket7)
pocket7.Profile = sketch13
pocket7.setExpression("Length", "Params.pocket7_length")
pocket7.Reversed = True
doc.recompute()

fillet = doc.addObject("PartDesign::Fillet", "Fillet")
body.addObject(fillet)
fillet.Base = (pocket7, edges_at(pocket7, [
    (29.4, 15.45, 13.501),
    (24.4, 15.525, 45.119),
    (24.4, 15.525, 56.469),
    (31.4, 14, 96),
    (31.4, 14, 108),
    (29.4, 15.45, 29.115),
]))
fillet.setExpression("Radius", "Params.fillet_radius")

# Sketch on YZ plane
sketch14 = doc.addObject("Sketcher::SketchObject", "Sketch013")
body.addObject(sketch14)
sketch14.AttachmentSupport = (doc.YZ_Plane, [""])
sketch14.MapMode = "FlatFace"
sketch14.AttachmentOffset = App.Placement(V(0, 0, -2.470061), App.Rotation())
sketch14.addGeometry(Part.LineSegment(V(13, 56, 0), V(5, 56, 0)), False)
sketch14.addGeometry(Part.LineSegment(V(5, 56, 0), V(5, 46, 0)), False)
sketch14.addGeometry(Part.LineSegment(V(5, 46, 0), V(13, 46, 0)), False)
sketch14.addGeometry(Part.LineSegment(V(13, 46, 0), V(13, 56, 0)), False)
sketch14.addConstraint(Sketcher.Constraint("Coincident", 0, 2, 1, 1))
sketch14.addConstraint(Sketcher.Constraint("Coincident", 1, 2, 2, 1))
sketch14.addConstraint(Sketcher.Constraint("Coincident", 2, 2, 3, 1))
sketch14.addConstraint(Sketcher.Constraint("Coincident", 3, 2, 0, 1))
sketch14.addConstraint(Sketcher.Constraint("Horizontal", 0))
sketch14.addConstraint(Sketcher.Constraint("Vertical", 1))
sketch14.addConstraint(Sketcher.Constraint("Horizontal", 2))
sketch14.addConstraint(Sketcher.Constraint("Vertical", 3))
sketch14.addConstraint(Sketcher.Constraint("DistanceY", -1, 1, 0, 2, 55.738999))
sketch14.addConstraint(Sketcher.Constraint("DistanceX", 0, 2, 0, 1, 8.253245))
sketch14.addConstraint(Sketcher.Constraint("DistanceY", 1, 2, 1, 1, 9.677736))
sketch14.addConstraint(Sketcher.Constraint("DistanceX", -1, 1, 2, 2, 13.14002))
pocket8 = doc.addObject("PartDesign::Pocket", "Pocket007")
body.addObject(pocket8)
pocket8.Profile = sketch14
pocket8.setExpression("Length", "Params.pocket8_length")
doc.recompute()

fillet2 = doc.addObject("PartDesign::Fillet", "Fillet001")
body.addObject(fillet2)
fillet2.Base = (pocket8, edges_at(pocket8, [(0, 18, 0), (0, 18, 132)]))
fillet2.setExpression("Radius", "Params.fillet2_radius")

doc.recompute()
